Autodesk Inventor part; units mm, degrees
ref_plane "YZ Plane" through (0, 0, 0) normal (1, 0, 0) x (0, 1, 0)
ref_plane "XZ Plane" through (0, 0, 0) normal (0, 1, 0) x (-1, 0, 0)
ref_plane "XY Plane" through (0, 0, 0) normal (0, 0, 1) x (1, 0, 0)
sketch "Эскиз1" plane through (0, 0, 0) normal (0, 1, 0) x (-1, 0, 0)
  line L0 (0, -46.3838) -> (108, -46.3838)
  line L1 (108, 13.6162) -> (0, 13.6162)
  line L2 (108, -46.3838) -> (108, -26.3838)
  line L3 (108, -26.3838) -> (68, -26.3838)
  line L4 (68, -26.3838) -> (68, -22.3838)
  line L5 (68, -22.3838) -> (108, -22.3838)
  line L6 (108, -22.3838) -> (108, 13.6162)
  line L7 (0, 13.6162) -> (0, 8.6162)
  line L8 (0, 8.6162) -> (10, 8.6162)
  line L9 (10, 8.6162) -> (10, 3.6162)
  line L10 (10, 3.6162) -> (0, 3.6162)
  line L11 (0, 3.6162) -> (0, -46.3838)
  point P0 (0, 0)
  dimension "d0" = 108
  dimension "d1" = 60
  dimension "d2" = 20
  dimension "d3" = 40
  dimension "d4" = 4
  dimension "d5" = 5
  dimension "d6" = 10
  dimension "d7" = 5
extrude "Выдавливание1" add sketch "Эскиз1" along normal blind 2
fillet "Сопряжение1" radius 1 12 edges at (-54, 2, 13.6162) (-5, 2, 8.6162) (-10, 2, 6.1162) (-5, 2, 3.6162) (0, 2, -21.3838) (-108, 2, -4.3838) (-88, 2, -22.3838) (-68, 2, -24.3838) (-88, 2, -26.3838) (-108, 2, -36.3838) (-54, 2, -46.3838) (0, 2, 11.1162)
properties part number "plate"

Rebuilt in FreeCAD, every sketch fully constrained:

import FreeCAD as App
import Part
import Sketcher

V = App.Vector
Q = App.Units.Quantity


def edges_at(feature, points):
    """Names of the edges that pass closest to the given points."""
    edges = feature.Shape.Edges
    near = lambda p: min(range(len(edges)), key=lambda i: edges[i].distToShape(Part.Vertex(*p))[0])
    return sorted({f"Edge{near(p) + 1}" for p in points})


def add_polygon(sketch, points):
    """Adds a closed chain of lines whose ends are joined by coincident constraints."""
    first, n = sketch.GeometryCount, len(points)
    for a, b in zip(points, points[1:] + points[:1]):
        sketch.addGeometry(Part.LineSegment(App.Vector(*a, 0), App.Vector(*b, 0)), False)
    for i in range(n):
        sketch.addConstraint(Sketcher.Constraint("Coincident", first + i, 2, first + (i + 1) % n, 1))

doc = App.newDocument("Part")
params = doc.addObject("Spreadsheet::Sheet", "Params")
for row, (alias, value) in enumerate([
    ("sketch1_width", "108 mm"),
    ("sketch1_width2", "40 mm"),
    ("sketch1_width3", "10 mm"),
    ("sketch1_height", "20 mm"),
    ("sketch1_height2", "4 mm"),
    ("pad1_length", "2 mm"),
    ("fillet_radius", "1 mm"),
], start=1):
    params.set(f"A{row}", alias)
    params.set(f"B{row}", "=" + value)
    params.setAlias(f"B{row}", alias)

body = doc.addObject("PartDesign::Body", "Body")

# Sketch on XZ plane
sketch1 = body.newObject("Sketcher::SketchObject", "Sketch")
sketch1.AttachmentSupport = (doc.getObject("XZ_Plane"), [""])
sketch1.MapMode = "FlatFace"
add_polygon(sketch1, [(0, 3.6162), (0, -46.3838), (-108, -46.3838), (-108, -26.3838), (-68, -26.3838), (-68, -22.3838), (-108, -22.3838), (-108, 13.6162), (0, 13.6162), (0, 8.6162), (-10, 8.6162), (-10, 3.6162)])  # lines 0-11
sketch1.addConstraint(Sketcher.Constraint("Vertical", 0))
sketch1.addConstraint(Sketcher.Constraint("Horizontal", 1))
sketch1.addConstraint(Sketcher.Constraint("Vertical", 2))
sketch1.addConstraint(Sketcher.Constraint("Horizontal", 3))
sketch1.addConstraint(Sketcher.Constraint("Vertical", 4))
sketch1.addConstraint(Sketcher.Constraint("Horizontal", 5))
sketch1.addConstraint(Sketcher.Constraint("Vertical", 6))
sketch1.addConstraint(Sketcher.Constraint("Horizontal", 7))
sketch1.addConstraint(Sketcher.Constraint("Vertical", 8))
sketch1.addConstraint(Sketcher.Constraint("Horizontal", 9))
sketch1.addConstraint(Sketcher.Constraint("Vertical", 10))
sketch1.addConstraint(Sketcher.Constraint("Horizontal", 11))
sketch1.addConstraint(Sketcher.Constraint("PointOnObject", 0, 2, -2))
sketch1.addConstraint(Sketcher.Constraint("PointOnObject", 7, 2, -2))
sketch1.addConstraint(Sketcher.Constraint("Vertical", 2, 2, 5, 2))
sketch1.addConstraint(Sketcher.Constraint("Equal", 8, 10))
sketch1.addConstraint(Sketcher.Constraint("DistanceX", 1, 2, 1, 1, Q("108 mm")))
sketch1.addConstraint(Sketcher.Constraint("DistanceX", 3, 1, 3, 2, Q("40 mm")))
sketch1.addConstraint(Sketcher.Constraint("DistanceX", 9, 2, 9, 1, Q("10 mm")))
sketch1.addConstraint(Sketcher.Constraint("DistanceY", 2, 1, 2, 2, Q("20 mm")))
sketch1.addConstraint(Sketcher.Constraint("DistanceY", 4, 1, 4, 2, Q("4 mm")))
sketch1.addConstraint(Sketcher.Constraint("DistanceY", 8, 2, 8, 1, Q("5 mm")))
sketch1.addConstraint(Sketcher.Constraint("DistanceY", 2, 2, 6, 2, Q("40 mm")))
sketch1.addConstraint(Sketcher.Constraint("DistanceY", 0, 2, -1, 1, Q("46.3838 mm")))
sketch1.setExpression("Constraints[28]", "Params.sketch1_width")
sketch1.setExpression("Constraints[29]", "Params.sketch1_width2")
sketch1.setExpression("Constraints[30]", "Params.sketch1_width3")
sketch1.setExpression("Constraints[31]", "Params.sketch1_height")
sketch1.setExpression("Constraints[32]", "Params.sketch1_height2")
pad1 = body.newObject("PartDesign::Pad", "Pad")
pad1.Profile = sketch1
pad1.setExpression("Length", "Params.pad1_length")
pad1.Reversed = True
doc.recompute()

fillet = body.newObject("PartDesign::Fillet", "Fillet")
fillet.Base = (pad1, edges_at(pad1, [
    (-54, 2, 13.616),
    (-5, 2, 8.616),
    (-10, 2, 6.116),
    (-5, 2, 3.616),
    (0, 2, -21.384),
    (-108, 2, -4.384),
    (-88, 2, -22.384),
    (-68, 2, -24.384),
    (-88, 2, -26.384),
    (-108, 2, -36.384),
    (-54, 2, -46.384),
    (0, 2, 11.116),
]))
fillet.setExpression("Radius", "Params.fillet_radius")

doc.recompute()
